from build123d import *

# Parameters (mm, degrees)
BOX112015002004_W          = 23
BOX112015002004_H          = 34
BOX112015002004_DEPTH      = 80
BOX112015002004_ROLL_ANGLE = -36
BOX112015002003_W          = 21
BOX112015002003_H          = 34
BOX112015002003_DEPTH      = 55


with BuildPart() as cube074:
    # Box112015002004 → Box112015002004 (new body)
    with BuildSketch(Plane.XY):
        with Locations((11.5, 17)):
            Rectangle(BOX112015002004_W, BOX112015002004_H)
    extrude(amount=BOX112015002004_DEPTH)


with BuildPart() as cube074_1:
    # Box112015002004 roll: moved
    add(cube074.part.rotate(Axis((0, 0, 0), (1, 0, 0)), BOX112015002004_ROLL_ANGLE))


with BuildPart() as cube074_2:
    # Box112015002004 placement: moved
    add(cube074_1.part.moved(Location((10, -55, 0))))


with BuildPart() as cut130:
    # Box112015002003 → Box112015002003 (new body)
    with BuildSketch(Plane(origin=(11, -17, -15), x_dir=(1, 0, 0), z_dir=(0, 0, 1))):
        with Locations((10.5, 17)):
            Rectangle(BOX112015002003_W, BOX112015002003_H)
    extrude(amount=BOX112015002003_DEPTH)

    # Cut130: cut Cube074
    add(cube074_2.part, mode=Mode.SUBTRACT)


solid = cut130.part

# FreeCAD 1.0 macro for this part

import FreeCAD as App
import Part
import Sketcher
from FreeCAD import Vector
Q = App.Units.Quantity


def add_polygon(sketch, points):
    """Adds a closed chain of lines whose ends are joined by coincident constraints."""
    first, n = sketch.GeometryCount, len(points)
    for a, b in zip(points, points[1:] + points[:1]):
        sketch.addGeometry(Part.LineSegment(App.Vector(*a, 0), App.Vector(*b, 0)), False)
    for i in range(n):
        sketch.addConstraint(Sketcher.Constraint("Coincident", first + i, 2, first + (i + 1) % n, 1))

doc = App.newDocument("Part")
body = doc.addObject("PartDesign::Body", "Body")

# Sketch on XY plane
sketch1 = body.newObject("Sketcher::SketchObject", "Sketch")
sketch1.AttachmentSupport = (doc.getObject("XY_Plane"), [""])
sketch1.MapMode = "FlatFace"
add_polygon(sketch1, [(0, 34), (0, 0), (23, 0), (23, 34)])  # lines 0-3
sketch1.addConstraint(Sketcher.Constraint("Vertical", 0))
sketch1.addConstraint(Sketcher.Constraint("Horizontal", 1))
sketch1.addConstraint(Sketcher.Constraint("Vertical", 2))
sketch1.addConstraint(Sketcher.Constraint("Horizontal", 3))
sketch1.addConstraint(Sketcher.Constraint("Coincident", 0, 2, -1, 1))
sketch1.addConstraint(Sketcher.Constraint("DistanceX", 1, 1, 1, 2, Q("23 mm")))
sketch1.addConstraint(Sketcher.Constraint("DistanceY", 0, 2, 0, 1, Q("34 mm")))
pad1 = body.newObject("PartDesign::Pad", "Pad")
pad1.Profile = sketch1
pad1.Length = 80
body2 = doc.addObject("PartDesign::Body", "Body001")
doc.recompute()

body.Placement = App.Placement(Vector(0, 0, 0), App.Rotation(Vector(1, 0, 0), 324))
boolean = body2.newObject("PartDesign::Boolean", "Boolean")
boolean.Type = "Fuse"
boolean.addObjects([body])
body3 = doc.addObject("PartDesign::Body", "Body002")
doc.recompute()

body2.Placement = App.Placement(Vector(10, -55, 0), App.Rotation(Vector(0, 0, 1), 0))
boolean2 = body3.newObject("PartDesign::Boolean", "Boolean001")
boolean2.Type = "Fuse"
boolean2.addObjects([body2])
body4 = doc.addObject("PartDesign::Body", "Body003")

# Sketch on XY plane
sketch2 = body4.newObject("Sketcher::SketchObject", "Sketch001")
sketch2.AttachmentSupport = (doc.getObject("XY_Plane003"), [""])
sketch2.MapMode = "FlatFace"
sketch2.AttachmentOffset = App.Placement(Vector(0, 0, -15), App.Rotation())
add_polygon(sketch2, [(11, 17), (11, -17), (32, -17), (32, 17)])  # lines 0-3
sketch2.addConstraint(Sketcher.Constraint("Vertical", 0))
sketch2.addConstraint(Sketcher.Constraint("Horizontal", 1))
sketch2.addConstraint(Sketcher.Constraint("Vertical", 2))
sketch2.addConstraint(Sketcher.Constraint("Horizontal", 3))
sketch2.addConstraint(Sketcher.Constraint("DistanceX", 1, 1, 1, 2, Q("21 mm")))
sketch2.addConstraint(Sketcher.Constraint("DistanceY", 0, 2, 0, 1, Q("34 mm")))
sketch2.addConstraint(Sketcher.Constraint("DistanceX", -1, 1, 0, 2, Q("11 mm")))
sketch2.addConstraint(Sketcher.Constraint("DistanceY", 0, 2, -1, 1, Q("17 mm")))
pad2 = body4.newObject("PartDesign::Pad", "Pad001")
pad2.Profile = sketch2
pad2.Length = 55
doc.recompute()

boolean3 = body4.newObject("PartDesign::Boolean", "Boolean002")
boolean3.Type = "Cut"
boolean3.addObjects([body3])

doc.recompute()
